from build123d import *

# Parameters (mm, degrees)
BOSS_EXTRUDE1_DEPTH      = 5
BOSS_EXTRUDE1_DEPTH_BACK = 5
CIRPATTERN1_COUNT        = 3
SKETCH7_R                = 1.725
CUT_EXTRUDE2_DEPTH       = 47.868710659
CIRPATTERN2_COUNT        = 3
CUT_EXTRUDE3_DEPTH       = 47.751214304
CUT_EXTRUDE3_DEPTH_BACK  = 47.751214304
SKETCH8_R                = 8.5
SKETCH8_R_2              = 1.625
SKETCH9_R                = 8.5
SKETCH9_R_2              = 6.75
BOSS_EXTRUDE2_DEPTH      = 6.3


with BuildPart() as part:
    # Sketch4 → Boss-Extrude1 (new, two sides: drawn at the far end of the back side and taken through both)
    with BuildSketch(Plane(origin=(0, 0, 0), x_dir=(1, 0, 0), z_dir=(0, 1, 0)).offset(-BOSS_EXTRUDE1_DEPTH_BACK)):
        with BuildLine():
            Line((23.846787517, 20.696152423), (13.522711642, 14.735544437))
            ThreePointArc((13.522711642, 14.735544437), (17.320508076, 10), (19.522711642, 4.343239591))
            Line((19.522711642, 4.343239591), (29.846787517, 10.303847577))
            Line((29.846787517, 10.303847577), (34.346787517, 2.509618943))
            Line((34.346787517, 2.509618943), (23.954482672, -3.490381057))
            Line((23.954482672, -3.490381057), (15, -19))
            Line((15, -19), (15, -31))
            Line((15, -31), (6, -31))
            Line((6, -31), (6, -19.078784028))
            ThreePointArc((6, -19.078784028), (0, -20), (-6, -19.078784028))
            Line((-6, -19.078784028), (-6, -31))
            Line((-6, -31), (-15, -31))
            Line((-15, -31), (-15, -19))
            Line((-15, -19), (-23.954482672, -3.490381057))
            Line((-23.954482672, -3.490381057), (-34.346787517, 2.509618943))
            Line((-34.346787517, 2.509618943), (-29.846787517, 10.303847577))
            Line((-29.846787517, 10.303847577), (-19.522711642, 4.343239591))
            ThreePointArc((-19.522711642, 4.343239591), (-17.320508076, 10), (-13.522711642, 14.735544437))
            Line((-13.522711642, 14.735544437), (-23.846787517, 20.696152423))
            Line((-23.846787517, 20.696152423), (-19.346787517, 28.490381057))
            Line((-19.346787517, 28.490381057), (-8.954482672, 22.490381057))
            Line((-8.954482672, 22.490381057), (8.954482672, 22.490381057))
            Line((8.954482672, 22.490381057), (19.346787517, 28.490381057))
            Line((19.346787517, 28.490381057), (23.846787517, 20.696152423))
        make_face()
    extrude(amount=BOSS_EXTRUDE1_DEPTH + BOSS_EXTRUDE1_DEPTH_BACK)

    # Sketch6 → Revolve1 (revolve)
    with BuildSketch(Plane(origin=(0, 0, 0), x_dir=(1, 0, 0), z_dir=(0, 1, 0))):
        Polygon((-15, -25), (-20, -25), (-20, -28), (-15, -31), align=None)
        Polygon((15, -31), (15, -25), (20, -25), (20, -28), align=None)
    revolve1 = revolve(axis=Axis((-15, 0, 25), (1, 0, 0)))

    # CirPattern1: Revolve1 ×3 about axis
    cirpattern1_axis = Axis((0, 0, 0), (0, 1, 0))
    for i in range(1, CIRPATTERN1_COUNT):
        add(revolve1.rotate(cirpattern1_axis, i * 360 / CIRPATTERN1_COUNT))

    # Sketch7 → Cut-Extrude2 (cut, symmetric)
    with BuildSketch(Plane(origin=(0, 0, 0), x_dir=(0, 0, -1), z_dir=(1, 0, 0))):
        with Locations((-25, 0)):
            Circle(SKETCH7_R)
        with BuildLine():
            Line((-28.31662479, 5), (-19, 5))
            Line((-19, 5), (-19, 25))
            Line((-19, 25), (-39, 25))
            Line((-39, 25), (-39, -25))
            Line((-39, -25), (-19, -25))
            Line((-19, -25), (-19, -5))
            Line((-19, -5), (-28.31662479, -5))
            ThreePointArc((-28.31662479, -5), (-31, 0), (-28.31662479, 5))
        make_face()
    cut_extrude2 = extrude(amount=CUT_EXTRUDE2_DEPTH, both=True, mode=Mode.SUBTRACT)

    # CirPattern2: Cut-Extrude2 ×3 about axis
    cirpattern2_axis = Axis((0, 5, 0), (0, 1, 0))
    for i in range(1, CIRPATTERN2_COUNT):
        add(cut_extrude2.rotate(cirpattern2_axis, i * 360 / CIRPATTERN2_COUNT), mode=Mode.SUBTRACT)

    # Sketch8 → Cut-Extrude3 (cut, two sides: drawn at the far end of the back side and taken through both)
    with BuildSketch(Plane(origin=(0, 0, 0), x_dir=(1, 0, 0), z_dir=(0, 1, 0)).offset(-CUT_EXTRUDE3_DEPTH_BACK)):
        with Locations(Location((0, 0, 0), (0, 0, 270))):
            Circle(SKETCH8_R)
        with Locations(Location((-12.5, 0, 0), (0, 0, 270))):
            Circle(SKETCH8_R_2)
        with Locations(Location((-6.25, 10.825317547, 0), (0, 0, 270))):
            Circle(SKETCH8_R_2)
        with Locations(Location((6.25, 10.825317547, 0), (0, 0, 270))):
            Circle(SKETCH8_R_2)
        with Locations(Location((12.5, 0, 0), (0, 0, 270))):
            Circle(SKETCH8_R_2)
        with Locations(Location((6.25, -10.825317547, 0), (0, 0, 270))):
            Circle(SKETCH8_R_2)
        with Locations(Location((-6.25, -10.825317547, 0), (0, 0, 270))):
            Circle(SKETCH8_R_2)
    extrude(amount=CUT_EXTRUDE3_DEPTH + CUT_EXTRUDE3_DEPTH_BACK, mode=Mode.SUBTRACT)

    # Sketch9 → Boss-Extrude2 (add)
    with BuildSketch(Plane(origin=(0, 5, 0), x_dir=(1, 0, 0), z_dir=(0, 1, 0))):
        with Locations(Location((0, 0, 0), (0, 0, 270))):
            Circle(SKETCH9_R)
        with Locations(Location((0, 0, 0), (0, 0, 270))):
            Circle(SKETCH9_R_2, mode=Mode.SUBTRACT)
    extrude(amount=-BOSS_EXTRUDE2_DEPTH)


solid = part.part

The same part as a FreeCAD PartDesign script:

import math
import FreeCAD as App
import Part
import Sketcher
from FreeCAD import Vector
Q = App.Units.Quantity


def add_polygon(sketch, points):
    """Adds a closed chain of lines whose ends are joined by coincident constraints."""
    first, n = sketch.GeometryCount, len(points)
    for a, b in zip(points, points[1:] + points[:1]):
        sketch.addGeometry(Part.LineSegment(App.Vector(*a, 0), App.Vector(*b, 0)), False)
    for i in range(n):
        sketch.addConstraint(Sketcher.Constraint("Coincident", first + i, 2, first + (i + 1) % n, 1))

doc = App.newDocument("Part")
body = doc.addObject("PartDesign::Body", "Body")

# Sketch on XZ plane
sketch1 = body.newObject("Sketcher::SketchObject", "Sketch")
sketch1.AttachmentSupport = (doc.getObject("XZ_Plane"), [""])
sketch1.MapMode = "FlatFace"
sketch1.addGeometry(Part.LineSegment(Vector(14, -15, 0), Vector(24, -21, 0)), False)
sketch1.addGeometry(Part.LineSegment(Vector(24, -21, 0), Vector(19, -28, 0)), False)
sketch1.addGeometry(Part.LineSegment(Vector(19, -28, 0), Vector(9, -22, 0)), False)
sketch1.addGeometry(Part.LineSegment(Vector(9, -22, 0), Vector(-9, -22, 0)), False)
sketch1.addGeometry(Part.LineSegment(Vector(-9, -22, 0), Vector(-19, -28, 0)), False)
sketch1.addGeometry(Part.LineSegment(Vector(-19, -28, 0), Vector(-24, -21, 0)), False)
sketch1.addGeometry(Part.LineSegment(Vector(-24, -21, 0), Vector(-14, -15, 0)), False)
sketch1.addGeometry(Part.ArcOfCircle(Part.Circle(Vector(0, 0, 0), Vector(0, 0, 1), 20), math.radians(-167), math.radians(-133)), False)
sketch1.addGeometry(Part.LineSegment(Vector(-20, -4, 0), Vector(-30, -10, 0)), False)
sketch1.addGeometry(Part.LineSegment(Vector(-30, -10, 0), Vector(-34, -3, 0)), False)
sketch1.addGeometry(Part.LineSegment(Vector(-34, -3, 0), Vector(-24, 3, 0)), False)
sketch1.addGeometry(Part.LineSegment(Vector(-24, 3, 0), Vector(-15, 19, 0)), False)
sketch1.addGeometry(Part.LineSegment(Vector(-15, 19, 0), Vector(-15, 31, 0)), False)
sketch1.addGeometry(Part.LineSegment(Vector(-15, 31, 0), Vector(-6, 31, 0)), False)
sketch1.addGeometry(Part.LineSegment(Vector(-6, 31, 0), Vector(-6, 19, 0)), False)
sketch1.addGeometry(Part.ArcOfCircle(Part.Circle(Vector(0, 0, 0), Vector(0, 0, 1), 20), math.radians(73), math.radians(107)), False)
sketch1.addGeometry(Part.LineSegment(Vector(6, 19, 0), Vector(6, 31, 0)), False)
sketch1.addGeometry(Part.LineSegment(Vector(6, 31, 0), Vector(15, 31, 0)), False)
sketch1.addGeometry(Part.LineSegment(Vector(15, 31, 0), Vector(15, 19, 0)), False)
sketch1.addGeometry(Part.LineSegment(Vector(15, 19, 0), Vector(24, 3, 0)), False)
sketch1.addGeometry(Part.LineSegment(Vector(24, 3, 0), Vector(34, -3, 0)), False)
sketch1.addGeometry(Part.LineSegment(Vector(34, -3, 0), Vector(30, -10, 0)), False)
sketch1.addGeometry(Part.LineSegment(Vector(30, -10, 0), Vector(20, -4, 0)), False)
sketch1.addGeometry(Part.ArcOfCircle(Part.Circle(Vector(0, 0, 0), Vector(0, 0, 1), 20), math.radians(-47), math.radians(-13)), False)
sketch1.addConstraint(Sketcher.Constraint("Coincident", 0, 2, 1, 1))
sketch1.addConstraint(Sketcher.Constraint("Coincident", 1, 2, 2, 1))
sketch1.addConstraint(Sketcher.Constraint("Coincident", 2, 2, 3, 1))
sketch1.addConstraint(Sketcher.Constraint("Coincident", 3, 2, 4, 1))
sketch1.addConstraint(Sketcher.Constraint("Coincident", 4, 2, 5, 1))
sketch1.addConstraint(Sketcher.Constraint("Coincident", 5, 2, 6, 1))
sketch1.addConstraint(Sketcher.Constraint("Coincident", 6, 2, 7, 2))
sketch1.addConstraint(Sketcher.Constraint("Coincident", 7, 1, 8, 1))
sketch1.addConstraint(Sketcher.Constraint("Coincident", 8, 2, 9, 1))
sketch1.addConstraint(Sketcher.Constraint("Coincident", 9, 2, 10, 1))
sketch1.addConstraint(Sketcher.Constraint("Coincident", 10, 2, 11, 1))
sketch1.addConstraint(Sketcher.Constraint("Coincident", 11, 2, 12, 1))
sketch1.addConstraint(Sketcher.Constraint("Coincident", 12, 2, 13, 1))
sketch1.addConstraint(Sketcher.Constraint("Coincident", 13, 2, 14, 1))
sketch1.addConstraint(Sketcher.Constraint("Coincident", 14, 2, 15, 2))
sketch1.addConstraint(Sketcher.Constraint("Coincident", 15, 1, 16, 1))
sketch1.addConstraint(Sketcher.Constraint("Coincident", 16, 2, 17, 1))
sketch1.addConstraint(Sketcher.Constraint("Coincident", 17, 2, 18, 1))
sketch1.addConstraint(Sketcher.Constraint("Coincident", 18, 2, 19, 1))
sketch1.addConstraint(Sketcher.Constraint("Coincident", 19, 2, 20, 1))
sketch1.addConstraint(Sketcher.Constraint("Coincident", 20, 2, 21, 1))
sketch1.addConstraint(Sketcher.Constraint("Coincident", 21, 2, 22, 1))
sketch1.addConstraint(Sketcher.Constraint("Coincident", 22, 2, 23, 2))
sketch1.addConstraint(Sketcher.Constraint("Coincident", 23, 1, 0, 1))
sketch1.addConstraint(Sketcher.Constraint("Horizontal", 3))
sketch1.addConstraint(Sketcher.Constraint("Vertical", 12))
sketch1.addConstraint(Sketcher.Constraint("Horizontal", 13))
sketch1.addConstraint(Sketcher.Constraint("Vertical", 14))
sketch1.addConstraint(Sketcher.Constraint("Vertical", 16))
sketch1.addConstraint(Sketcher.Constraint("Horizontal", 17))
sketch1.addConstraint(Sketcher.Constraint("Vertical", 18))
sketch1.addConstraint(Sketcher.Constraint("Coincident", 7, 3, -1, 1))
sketch1.addConstraint(Sketcher.Constraint("Coincident", 15, 3, -1, 1))
sketch1.addConstraint(Sketcher.Constraint("Coincident", 23, 3, -1, 1))
sketch1.addConstraint(Sketcher.Constraint("Equal", 7, 15))
sketch1.addConstraint(Sketcher.Constraint("Equal", 15, 23))
sketch1.addConstraint(Sketcher.Constraint("Symmetric", 1, 2, 4, 2, -2))
sketch1.addConstraint(Sketcher.Constraint("Symmetric", 0, 2, 5, 2, -2))
sketch1.addConstraint(Sketcher.Constraint("Symmetric", 13, 2, 16, 2, -2))
sketch1.addConstraint(Sketcher.Constraint("Symmetric", 11, 2, 18, 2, -2))
sketch1.addConstraint(Sketcher.Constraint("Symmetric", 10, 2, 19, 2, -2))
sketch1.addConstraint(Sketcher.Constraint("Symmetric", 9, 2, 20, 2, -2))
sketch1.addConstraint(Sketcher.Constraint("Symmetric", 8, 2, 21, 2, -2))
sketch1.addConstraint(Sketcher.Constraint("Perpendicular", 0, 1))
sketch1.addConstraint(Sketcher.Constraint("Perpendicular", 1, 2))
sketch1.addConstraint(Sketcher.Constraint("Perpendicular", 4, 5))
sketch1.addConstraint(Sketcher.Constraint("Perpendicular", 5, 6))
sketch1.addConstraint(Sketcher.Constraint("Parallel", 6, 8))
sketch1.addConstraint(Sketcher.Constraint("Perpendicular", 8, 9))
sketch1.addConstraint(Sketcher.Constraint("Perpendicular", 9, 10))
sketch1.addConstraint(Sketcher.Constraint("Perpendicular", 2, 11))
sketch1.addConstraint(Sketcher.Constraint("Perpendicular", 21, 22))
sketch1.addConstraint(Sketcher.Constraint("Equal", 6, 8))
sketch1.addConstraint(Sketcher.Constraint("Equal", 5, 9))
sketch1.addConstraint(Sketcher.Constraint("Equal", 4, 10))
sketch1.addConstraint(Sketcher.Constraint("Radius", 7, Q("20 mm")))
sketch1.addConstraint(Sketcher.Constraint("DistanceX", 13, 1, 13, 2, Q("9 mm")))
sketch1.addConstraint(Sketcher.Constraint("DistanceY", 12, 1, 12, 2, Q("12 mm")))
sketch1.addConstraint(Sketcher.Constraint("Angle", 0, Q("-30 deg")))
sketch1.addConstraint(Sketcher.Constraint("Distance", 1, Q("9 mm")))
sketch1.addConstraint(Sketcher.Constraint("Distance", 2, Q("12 mm")))
sketch1.addConstraint(Sketcher.Constraint("DistanceX", 11, 2, -1, 1, Q("15 mm")))
sketch1.addConstraint(Sketcher.Constraint("DistanceY", -1, 1, 11, 2, Q("19 mm")))
sketch1.addConstraint(Sketcher.Constraint("DistanceX", 7, 1, 6, 2, Q("6 mm")))
sketch1.addConstraint(Sketcher.Constraint("DistanceX", 3, 2, 3, 1, Q("17.908965 mm")))
pad1 = body.newObject("PartDesign::Pad", "Pad")
pad1.Profile = sketch1
pad1.Type = "TwoLengths"
pad1.Length = 5
pad1.Length2 = 5
pad1.Reversed = True

# Sketch on XZ plane
sketch2 = body.newObject("Sketcher::SketchObject", "Sketch001")
sketch2.AttachmentSupport = (doc.getObject("XZ_Plane"), [""])
sketch2.MapMode = "FlatFace"
add_polygon(sketch2, [(-15, 25), (-20, 25), (-20, 28), (-15, 31)])  # lines 0-3
add_polygon(sketch2, [(15, 25), (15, 31), (20, 28), (20, 25)])  # lines 4-7
sketch2.addGeometry(Part.LineSegment(Vector(-20, 25, 0), Vector(20, 25, 0)), True)  # axis
sketch2.addConstraint(Sketcher.Constraint("Horizontal", 0))
sketch2.addConstraint(Sketcher.Constraint("Vertical", 1))
sketch2.addConstraint(Sketcher.Constraint("Vertical", 3))
sketch2.addConstraint(Sketcher.Constraint("Vertical", 4))
sketch2.addConstraint(Sketcher.Constraint("Vertical", 6))
sketch2.addConstraint(Sketcher.Constraint("Horizontal", 7))
sketch2.addConstraint(Sketcher.Constraint("Horizontal", 8))
sketch2.addConstraint(Sketcher.Constraint("Coincident", 8, 1, 0, 2))
sketch2.addConstraint(Sketcher.Constraint("Coincident", 8, 2, 6, 2))
sketch2.addConstraint(Sketcher.Constraint("Symmetric", 2, 2, 4, 2, -2))
sketch2.addConstraint(Sketcher.Constraint("Symmetric", 1, 2, 5, 2, -2))
sketch2.addConstraint(Sketcher.Constraint("DistanceX", 0, 2, 0, 1, Q("5 mm")))
sketch2.addConstraint(Sketcher.Constraint("DistanceX", 8, 1, 8, 2, Q("40 mm")))
sketch2.addConstraint(Sketcher.Constraint("DistanceY", 1, 1, 1, 2, Q("3 mm")))
sketch2.addConstraint(Sketcher.Constraint("DistanceY", 3, 2, 3, 1, Q("6 mm")))
sketch2.addConstraint(Sketcher.Constraint("DistanceY", -1, 1, 0, 2, Q("25 mm")))
revolution = body.newObject("PartDesign::Revolution", "Revolution")
revolution.Profile = sketch2
revolution.ReferenceAxis = (sketch2, ["Axis0"])
revolution.Angle = 360
doc.recompute()

polarpattern = body.newObject("PartDesign::PolarPattern", "PolarPattern")
polarpattern.Originals = [revolution]
polarpattern.Axis = (doc.getObject("Y_Axis"), [""])
polarpattern.Angle = 360
polarpattern.Occurrences = 3
body.Tip = polarpattern

# Sketch on YZ plane
sketch3 = body.newObject("Sketcher::SketchObject", "Sketch002")
sketch3.AttachmentSupport = (doc.getObject("YZ_Plane"), [""])
sketch3.MapMode = "FlatFace"
sketch3.addGeometry(Part.Circle(Vector(0, 25, 0), Vector(0, 0, 1), 1.7), False)
sketch3.addGeometry(Part.LineSegment(Vector(5, 28.3, 0), Vector(5, 19, 0)), False)
sketch3.addGeometry(Part.LineSegment(Vector(5, 19, 0), Vector(25, 19, 0)), False)
sketch3.addGeometry(Part.LineSegment(Vector(25, 19, 0), Vector(25, 39, 0)), False)
sketch3.addGeometry(Part.LineSegment(Vector(25, 39, 0), Vector(-25, 39, 0)), False)
sketch3.addGeometry(Part.LineSegment(Vector(-25, 39, 0), Vector(-25, 19, 0)), False)
sketch3.addGeometry(Part.LineSegment(Vector(-25, 19, 0), Vector(-5, 19, 0)), False)
sketch3.addGeometry(Part.LineSegment(Vector(-5, 19, 0), Vector(-5, 28.3, 0)), False)
sketch3.addGeometry(Part.ArcOfCircle(Part.Circle(Vector(0, 25, 0), Vector(0, 0, 1), 6), math.radians(34), math.radians(146)), False)
sketch3.addConstraint(Sketcher.Constraint("Coincident", 1, 2, 2, 1))
sketch3.addConstraint(Sketcher.Constraint("Coincident", 2, 2, 3, 1))
sketch3.addConstraint(Sketcher.Constraint("Coincident", 3, 2, 4, 1))
sketch3.addConstraint(Sketcher.Constraint("Coincident", 4, 2, 5, 1))
sketch3.addConstraint(Sketcher.Constraint("Coincident", 5, 2, 6, 1))
sketch3.addConstraint(Sketcher.Constraint("Coincident", 6, 2, 7, 1))
sketch3.addConstraint(Sketcher.Constraint("Coincident", 7, 2, 8, 2))
sketch3.addConstraint(Sketcher.Constraint("Coincident", 8, 1, 1, 1))
sketch3.addConstraint(Sketcher.Constraint("Vertical", 1))
sketch3.addConstraint(Sketcher.Constraint("Horizontal", 2))
sketch3.addConstraint(Sketcher.Constraint("Vertical", 3))
sketch3.addConstraint(Sketcher.Constraint("Horizontal", 4))
sketch3.addConstraint(Sketcher.Constraint("Vertical", 5))
sketch3.addConstraint(Sketcher.Constraint("Horizontal", 6))
sketch3.addConstraint(Sketcher.Constraint("Vertical", 7))
sketch3.addConstraint(Sketcher.Constraint("Coincident", 8, 3, 0, 3))
sketch3.addConstraint(Sketcher.Constraint("Symmetric", 2, 2, 5, 2, -2))
sketch3.addConstraint(Sketcher.Constraint("Symmetric", 7, 2, 8, 1, -2))
sketch3.addConstraint(Sketcher.Constraint("Equal", 6, 3))
sketch3.addConstraint(Sketcher.Constraint("Radius", 8, Q("6 mm")))
sketch3.addConstraint(Sketcher.Constraint("Diameter", 0, Q("3.45 mm")))
sketch3.addConstraint(Sketcher.Constraint("DistanceX", 2, 1, 2, 2, Q("20 mm")))
sketch3.addConstraint(Sketcher.Constraint("DistanceX", 4, 2, 4, 1, Q("50 mm")))
sketch3.addConstraint(Sketcher.Constraint("DistanceY", -1, 1, 0, 3, Q("25 mm")))
sketch3.addConstraint(Sketcher.Constraint("DistanceY", -1, 1, 1, 2, Q("19 mm")))
pocket1 = body.newObject("PartDesign::Pocket", "Pocket")
pocket1.Profile = sketch3
pocket1.Length = 95.737421
pocket1.Midplane = True
doc.recompute()

polarpattern2 = body.newObject("PartDesign::PolarPattern", "PolarPattern001")
polarpattern2.Originals = [pocket1]
polarpattern2.Axis = (doc.getObject("Y_Axis"), [""])
polarpattern2.Angle = 360
polarpattern2.Occurrences = 3
body.Tip = polarpattern2

# Sketch on XZ plane
sketch4 = body.newObject("Sketcher::SketchObject", "Sketch003")
sketch4.AttachmentSupport = (doc.getObject("XZ_Plane"), [""])
sketch4.MapMode = "FlatFace"
sketch4.addGeometry(Part.Circle(Vector(0, 0, 0), Vector(0, 0, 1), 8.5), False)
sketch4.addGeometry(Part.Circle(Vector(-12.5, 0, 0), Vector(0, 0, 1), 1.6), False)
sketch4.addGeometry(Part.Circle(Vector(-6.2, -10.8, 0), Vector(0, 0, 1), 1.6), False)
sketch4.addGeometry(Part.Circle(Vector(6.2, -10.8, 0), Vector(0, 0, 1), 1.6), False)
sketch4.addGeometry(Part.Circle(Vector(12.5, 0, 0), Vector(0, 0, 1), 1.6), False)
sketch4.addGeometry(Part.Circle(Vector(6.2, 10.8, 0), Vector(0, 0, 1), 1.6), False)
sketch4.addGeometry(Part.Circle(Vector(-6.2, 10.8, 0), Vector(0, 0, 1), 1.6), False)
sketch4.addConstraint(Sketcher.Constraint("Coincident", 0, 3, -1, 1))
sketch4.addConstraint(Sketcher.Constraint("Equal", 1, 2))
sketch4.addConstraint(Sketcher.Constraint("Equal", 2, 3))
sketch4.addConstraint(Sketcher.Constraint("Equal", 3, 4))
sketch4.addConstraint(Sketcher.Constraint("Equal", 4, 5))
sketch4.addConstraint(Sketcher.Constraint("Equal", 5, 6))
sketch4.addConstraint(Sketcher.Constraint("Symmetric", 1, 3, 4, 3, -1, 1))
sketch4.addConstraint(Sketcher.Constraint("Symmetric", 2, 3, 5, 3, -1, 1))
sketch4.addConstraint(Sketcher.Constraint("Symmetric", 3, 3, 6, 3, -1, 1))
sketch4.addConstraint(Sketcher.Constraint("Symmetric", 2, 3, 3, 3, -2))
sketch4.addConstraint(Sketcher.Constraint("PointOnObject", 1, 3, -1))
sketch4.addConstraint(Sketcher.Constraint("Diameter", 0, Q("17 mm")))
sketch4.addConstraint(Sketcher.Constraint("Diameter", 1, Q("3.25 mm")))
sketch4.addConstraint(Sketcher.Constraint("DistanceX", 1, 3, 4, 3, Q("25 mm")))
sketch4.addConstraint(Sketcher.Constraint("DistanceX", 2, 3, 3, 3, Q("12.5 mm")))
sketch4.addConstraint(Sketcher.Constraint("DistanceY", 2, 3, -1, 1, Q("10.825318 mm")))
pocket2 = body.newObject("PartDesign::Pocket", "Pocket001")
pocket2.Profile = sketch4
pocket2.Type = "ThroughAll"
pocket2.Midplane = True

# Sketch on XZ plane
sketch5 = body.newObject("Sketcher::SketchObject", "Sketch004")
sketch5.AttachmentSupport = (doc.getObject("XZ_Plane"), [""])
sketch5.MapMode = "FlatFace"
sketch5.AttachmentOffset = App.Placement(Vector(0, 0, -5), App.Rotation())
sketch5.addGeometry(Part.Circle(Vector(0, 0, 0), Vector(0, 0, 1), 8), False)
sketch5.addGeometry(Part.Circle(Vector(0, 0, 0), Vector(0, 0, 1), 7), False)
sketch5.addConstraint(Sketcher.Constraint("Coincident", 0, 3, -1, 1))
sketch5.addConstraint(Sketcher.Constraint("Coincident", 1, 3, -1, 1))
sketch5.addConstraint(Sketcher.Constraint("Diameter", 0, Q("17 mm")))
sketch5.addConstraint(Sketcher.Constraint("Diameter", 1, Q("13.5 mm")))
pad2 = body.newObject("PartDesign::Pad", "Pad001")
pad2.Profile = sketch5
pad2.Length = 6.3

doc.recompute()
